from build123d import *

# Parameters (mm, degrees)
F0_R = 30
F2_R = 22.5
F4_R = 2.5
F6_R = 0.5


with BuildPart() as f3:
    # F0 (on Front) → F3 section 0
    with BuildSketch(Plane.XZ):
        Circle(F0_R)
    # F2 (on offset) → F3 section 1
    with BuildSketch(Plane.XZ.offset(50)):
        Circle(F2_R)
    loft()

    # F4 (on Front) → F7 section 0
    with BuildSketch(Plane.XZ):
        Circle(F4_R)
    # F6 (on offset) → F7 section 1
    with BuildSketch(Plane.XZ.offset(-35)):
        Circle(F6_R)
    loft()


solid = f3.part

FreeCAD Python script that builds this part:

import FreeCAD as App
import Part
import Sketcher

V = App.Vector
Q = App.Units.Quantity

doc = App.newDocument("Part")
body = doc.addObject("PartDesign::Body", "Body")

# Sketch on XZ plane
sketch1 = body.newObject("Sketcher::SketchObject", "Sketch")
sketch1.AttachmentSupport = (doc.getObject("XZ_Plane"), [""])
sketch1.MapMode = "FlatFace"
sketch1.addGeometry(Part.Circle(V(0, 0, 0), V(0, 0, 1), 30), False)
sketch1.addConstraint([
    Sketcher.Constraint("Coincident", 0, 3, -1, 1),
    Sketcher.Constraint("Diameter", 0, Q("60 mm")),
])

# Sketch on XZ plane
sketch2 = body.newObject("Sketcher::SketchObject", "Sketch001")
sketch2.AttachmentSupport = (doc.getObject("XZ_Plane"), [""])
sketch2.MapMode = "FlatFace"
sketch2.AttachmentOffset = App.Placement(V(0, 0, 50), App.Rotation())
sketch2.addGeometry(Part.Circle(V(0, 0, 0), V(0, 0, 1), 22), False)
sketch2.addConstraint([
    Sketcher.Constraint("Coincident", 0, 3, -1, 1),
    Sketcher.Constraint("Diameter", 0, Q("45 mm")),
])

additiveloft = body.newObject("PartDesign::AdditiveLoft", "AdditiveLoft")
additiveloft.Profile = sketch1
additiveloft.Sections = [sketch2]

# Sketch on XZ plane
sketch3 = body.newObject("Sketcher::SketchObject", "Sketch002")
sketch3.AttachmentSupport = (doc.getObject("XZ_Plane"), [""])
sketch3.MapMode = "FlatFace"
sketch3.addGeometry(Part.Circle(V(0, 0, 0), V(0, 0, 1), 2.5), False)
sketch3.addConstraint([
    Sketcher.Constraint("Coincident", 0, 3, -1, 1),
    Sketcher.Constraint("Diameter", 0, Q("5 mm")),
])

# Sketch on XZ plane
sketch4 = body.newObject("Sketcher::SketchObject", "Sketch003")
sketch4.AttachmentSupport = (doc.getObject("XZ_Plane"), [""])
sketch4.MapMode = "FlatFace"
sketch4.AttachmentOffset = App.Placement(V(0, 0, -35), App.Rotation())
sketch4.addGeometry(Part.Circle(V(0, 0, 0), V(0, 0, 1), 0.5), False)
sketch4.addConstraint([
    Sketcher.Constraint("Coincident", 0, 3, -1, 1),
    Sketcher.Constraint("Diameter", 0, Q("1 mm")),
])

additiveloft2 = body.newObject("PartDesign::AdditiveLoft", "AdditiveLoft001")
additiveloft2.Profile = sketch3
additiveloft2.Sections = [sketch4]

doc.recompute()
